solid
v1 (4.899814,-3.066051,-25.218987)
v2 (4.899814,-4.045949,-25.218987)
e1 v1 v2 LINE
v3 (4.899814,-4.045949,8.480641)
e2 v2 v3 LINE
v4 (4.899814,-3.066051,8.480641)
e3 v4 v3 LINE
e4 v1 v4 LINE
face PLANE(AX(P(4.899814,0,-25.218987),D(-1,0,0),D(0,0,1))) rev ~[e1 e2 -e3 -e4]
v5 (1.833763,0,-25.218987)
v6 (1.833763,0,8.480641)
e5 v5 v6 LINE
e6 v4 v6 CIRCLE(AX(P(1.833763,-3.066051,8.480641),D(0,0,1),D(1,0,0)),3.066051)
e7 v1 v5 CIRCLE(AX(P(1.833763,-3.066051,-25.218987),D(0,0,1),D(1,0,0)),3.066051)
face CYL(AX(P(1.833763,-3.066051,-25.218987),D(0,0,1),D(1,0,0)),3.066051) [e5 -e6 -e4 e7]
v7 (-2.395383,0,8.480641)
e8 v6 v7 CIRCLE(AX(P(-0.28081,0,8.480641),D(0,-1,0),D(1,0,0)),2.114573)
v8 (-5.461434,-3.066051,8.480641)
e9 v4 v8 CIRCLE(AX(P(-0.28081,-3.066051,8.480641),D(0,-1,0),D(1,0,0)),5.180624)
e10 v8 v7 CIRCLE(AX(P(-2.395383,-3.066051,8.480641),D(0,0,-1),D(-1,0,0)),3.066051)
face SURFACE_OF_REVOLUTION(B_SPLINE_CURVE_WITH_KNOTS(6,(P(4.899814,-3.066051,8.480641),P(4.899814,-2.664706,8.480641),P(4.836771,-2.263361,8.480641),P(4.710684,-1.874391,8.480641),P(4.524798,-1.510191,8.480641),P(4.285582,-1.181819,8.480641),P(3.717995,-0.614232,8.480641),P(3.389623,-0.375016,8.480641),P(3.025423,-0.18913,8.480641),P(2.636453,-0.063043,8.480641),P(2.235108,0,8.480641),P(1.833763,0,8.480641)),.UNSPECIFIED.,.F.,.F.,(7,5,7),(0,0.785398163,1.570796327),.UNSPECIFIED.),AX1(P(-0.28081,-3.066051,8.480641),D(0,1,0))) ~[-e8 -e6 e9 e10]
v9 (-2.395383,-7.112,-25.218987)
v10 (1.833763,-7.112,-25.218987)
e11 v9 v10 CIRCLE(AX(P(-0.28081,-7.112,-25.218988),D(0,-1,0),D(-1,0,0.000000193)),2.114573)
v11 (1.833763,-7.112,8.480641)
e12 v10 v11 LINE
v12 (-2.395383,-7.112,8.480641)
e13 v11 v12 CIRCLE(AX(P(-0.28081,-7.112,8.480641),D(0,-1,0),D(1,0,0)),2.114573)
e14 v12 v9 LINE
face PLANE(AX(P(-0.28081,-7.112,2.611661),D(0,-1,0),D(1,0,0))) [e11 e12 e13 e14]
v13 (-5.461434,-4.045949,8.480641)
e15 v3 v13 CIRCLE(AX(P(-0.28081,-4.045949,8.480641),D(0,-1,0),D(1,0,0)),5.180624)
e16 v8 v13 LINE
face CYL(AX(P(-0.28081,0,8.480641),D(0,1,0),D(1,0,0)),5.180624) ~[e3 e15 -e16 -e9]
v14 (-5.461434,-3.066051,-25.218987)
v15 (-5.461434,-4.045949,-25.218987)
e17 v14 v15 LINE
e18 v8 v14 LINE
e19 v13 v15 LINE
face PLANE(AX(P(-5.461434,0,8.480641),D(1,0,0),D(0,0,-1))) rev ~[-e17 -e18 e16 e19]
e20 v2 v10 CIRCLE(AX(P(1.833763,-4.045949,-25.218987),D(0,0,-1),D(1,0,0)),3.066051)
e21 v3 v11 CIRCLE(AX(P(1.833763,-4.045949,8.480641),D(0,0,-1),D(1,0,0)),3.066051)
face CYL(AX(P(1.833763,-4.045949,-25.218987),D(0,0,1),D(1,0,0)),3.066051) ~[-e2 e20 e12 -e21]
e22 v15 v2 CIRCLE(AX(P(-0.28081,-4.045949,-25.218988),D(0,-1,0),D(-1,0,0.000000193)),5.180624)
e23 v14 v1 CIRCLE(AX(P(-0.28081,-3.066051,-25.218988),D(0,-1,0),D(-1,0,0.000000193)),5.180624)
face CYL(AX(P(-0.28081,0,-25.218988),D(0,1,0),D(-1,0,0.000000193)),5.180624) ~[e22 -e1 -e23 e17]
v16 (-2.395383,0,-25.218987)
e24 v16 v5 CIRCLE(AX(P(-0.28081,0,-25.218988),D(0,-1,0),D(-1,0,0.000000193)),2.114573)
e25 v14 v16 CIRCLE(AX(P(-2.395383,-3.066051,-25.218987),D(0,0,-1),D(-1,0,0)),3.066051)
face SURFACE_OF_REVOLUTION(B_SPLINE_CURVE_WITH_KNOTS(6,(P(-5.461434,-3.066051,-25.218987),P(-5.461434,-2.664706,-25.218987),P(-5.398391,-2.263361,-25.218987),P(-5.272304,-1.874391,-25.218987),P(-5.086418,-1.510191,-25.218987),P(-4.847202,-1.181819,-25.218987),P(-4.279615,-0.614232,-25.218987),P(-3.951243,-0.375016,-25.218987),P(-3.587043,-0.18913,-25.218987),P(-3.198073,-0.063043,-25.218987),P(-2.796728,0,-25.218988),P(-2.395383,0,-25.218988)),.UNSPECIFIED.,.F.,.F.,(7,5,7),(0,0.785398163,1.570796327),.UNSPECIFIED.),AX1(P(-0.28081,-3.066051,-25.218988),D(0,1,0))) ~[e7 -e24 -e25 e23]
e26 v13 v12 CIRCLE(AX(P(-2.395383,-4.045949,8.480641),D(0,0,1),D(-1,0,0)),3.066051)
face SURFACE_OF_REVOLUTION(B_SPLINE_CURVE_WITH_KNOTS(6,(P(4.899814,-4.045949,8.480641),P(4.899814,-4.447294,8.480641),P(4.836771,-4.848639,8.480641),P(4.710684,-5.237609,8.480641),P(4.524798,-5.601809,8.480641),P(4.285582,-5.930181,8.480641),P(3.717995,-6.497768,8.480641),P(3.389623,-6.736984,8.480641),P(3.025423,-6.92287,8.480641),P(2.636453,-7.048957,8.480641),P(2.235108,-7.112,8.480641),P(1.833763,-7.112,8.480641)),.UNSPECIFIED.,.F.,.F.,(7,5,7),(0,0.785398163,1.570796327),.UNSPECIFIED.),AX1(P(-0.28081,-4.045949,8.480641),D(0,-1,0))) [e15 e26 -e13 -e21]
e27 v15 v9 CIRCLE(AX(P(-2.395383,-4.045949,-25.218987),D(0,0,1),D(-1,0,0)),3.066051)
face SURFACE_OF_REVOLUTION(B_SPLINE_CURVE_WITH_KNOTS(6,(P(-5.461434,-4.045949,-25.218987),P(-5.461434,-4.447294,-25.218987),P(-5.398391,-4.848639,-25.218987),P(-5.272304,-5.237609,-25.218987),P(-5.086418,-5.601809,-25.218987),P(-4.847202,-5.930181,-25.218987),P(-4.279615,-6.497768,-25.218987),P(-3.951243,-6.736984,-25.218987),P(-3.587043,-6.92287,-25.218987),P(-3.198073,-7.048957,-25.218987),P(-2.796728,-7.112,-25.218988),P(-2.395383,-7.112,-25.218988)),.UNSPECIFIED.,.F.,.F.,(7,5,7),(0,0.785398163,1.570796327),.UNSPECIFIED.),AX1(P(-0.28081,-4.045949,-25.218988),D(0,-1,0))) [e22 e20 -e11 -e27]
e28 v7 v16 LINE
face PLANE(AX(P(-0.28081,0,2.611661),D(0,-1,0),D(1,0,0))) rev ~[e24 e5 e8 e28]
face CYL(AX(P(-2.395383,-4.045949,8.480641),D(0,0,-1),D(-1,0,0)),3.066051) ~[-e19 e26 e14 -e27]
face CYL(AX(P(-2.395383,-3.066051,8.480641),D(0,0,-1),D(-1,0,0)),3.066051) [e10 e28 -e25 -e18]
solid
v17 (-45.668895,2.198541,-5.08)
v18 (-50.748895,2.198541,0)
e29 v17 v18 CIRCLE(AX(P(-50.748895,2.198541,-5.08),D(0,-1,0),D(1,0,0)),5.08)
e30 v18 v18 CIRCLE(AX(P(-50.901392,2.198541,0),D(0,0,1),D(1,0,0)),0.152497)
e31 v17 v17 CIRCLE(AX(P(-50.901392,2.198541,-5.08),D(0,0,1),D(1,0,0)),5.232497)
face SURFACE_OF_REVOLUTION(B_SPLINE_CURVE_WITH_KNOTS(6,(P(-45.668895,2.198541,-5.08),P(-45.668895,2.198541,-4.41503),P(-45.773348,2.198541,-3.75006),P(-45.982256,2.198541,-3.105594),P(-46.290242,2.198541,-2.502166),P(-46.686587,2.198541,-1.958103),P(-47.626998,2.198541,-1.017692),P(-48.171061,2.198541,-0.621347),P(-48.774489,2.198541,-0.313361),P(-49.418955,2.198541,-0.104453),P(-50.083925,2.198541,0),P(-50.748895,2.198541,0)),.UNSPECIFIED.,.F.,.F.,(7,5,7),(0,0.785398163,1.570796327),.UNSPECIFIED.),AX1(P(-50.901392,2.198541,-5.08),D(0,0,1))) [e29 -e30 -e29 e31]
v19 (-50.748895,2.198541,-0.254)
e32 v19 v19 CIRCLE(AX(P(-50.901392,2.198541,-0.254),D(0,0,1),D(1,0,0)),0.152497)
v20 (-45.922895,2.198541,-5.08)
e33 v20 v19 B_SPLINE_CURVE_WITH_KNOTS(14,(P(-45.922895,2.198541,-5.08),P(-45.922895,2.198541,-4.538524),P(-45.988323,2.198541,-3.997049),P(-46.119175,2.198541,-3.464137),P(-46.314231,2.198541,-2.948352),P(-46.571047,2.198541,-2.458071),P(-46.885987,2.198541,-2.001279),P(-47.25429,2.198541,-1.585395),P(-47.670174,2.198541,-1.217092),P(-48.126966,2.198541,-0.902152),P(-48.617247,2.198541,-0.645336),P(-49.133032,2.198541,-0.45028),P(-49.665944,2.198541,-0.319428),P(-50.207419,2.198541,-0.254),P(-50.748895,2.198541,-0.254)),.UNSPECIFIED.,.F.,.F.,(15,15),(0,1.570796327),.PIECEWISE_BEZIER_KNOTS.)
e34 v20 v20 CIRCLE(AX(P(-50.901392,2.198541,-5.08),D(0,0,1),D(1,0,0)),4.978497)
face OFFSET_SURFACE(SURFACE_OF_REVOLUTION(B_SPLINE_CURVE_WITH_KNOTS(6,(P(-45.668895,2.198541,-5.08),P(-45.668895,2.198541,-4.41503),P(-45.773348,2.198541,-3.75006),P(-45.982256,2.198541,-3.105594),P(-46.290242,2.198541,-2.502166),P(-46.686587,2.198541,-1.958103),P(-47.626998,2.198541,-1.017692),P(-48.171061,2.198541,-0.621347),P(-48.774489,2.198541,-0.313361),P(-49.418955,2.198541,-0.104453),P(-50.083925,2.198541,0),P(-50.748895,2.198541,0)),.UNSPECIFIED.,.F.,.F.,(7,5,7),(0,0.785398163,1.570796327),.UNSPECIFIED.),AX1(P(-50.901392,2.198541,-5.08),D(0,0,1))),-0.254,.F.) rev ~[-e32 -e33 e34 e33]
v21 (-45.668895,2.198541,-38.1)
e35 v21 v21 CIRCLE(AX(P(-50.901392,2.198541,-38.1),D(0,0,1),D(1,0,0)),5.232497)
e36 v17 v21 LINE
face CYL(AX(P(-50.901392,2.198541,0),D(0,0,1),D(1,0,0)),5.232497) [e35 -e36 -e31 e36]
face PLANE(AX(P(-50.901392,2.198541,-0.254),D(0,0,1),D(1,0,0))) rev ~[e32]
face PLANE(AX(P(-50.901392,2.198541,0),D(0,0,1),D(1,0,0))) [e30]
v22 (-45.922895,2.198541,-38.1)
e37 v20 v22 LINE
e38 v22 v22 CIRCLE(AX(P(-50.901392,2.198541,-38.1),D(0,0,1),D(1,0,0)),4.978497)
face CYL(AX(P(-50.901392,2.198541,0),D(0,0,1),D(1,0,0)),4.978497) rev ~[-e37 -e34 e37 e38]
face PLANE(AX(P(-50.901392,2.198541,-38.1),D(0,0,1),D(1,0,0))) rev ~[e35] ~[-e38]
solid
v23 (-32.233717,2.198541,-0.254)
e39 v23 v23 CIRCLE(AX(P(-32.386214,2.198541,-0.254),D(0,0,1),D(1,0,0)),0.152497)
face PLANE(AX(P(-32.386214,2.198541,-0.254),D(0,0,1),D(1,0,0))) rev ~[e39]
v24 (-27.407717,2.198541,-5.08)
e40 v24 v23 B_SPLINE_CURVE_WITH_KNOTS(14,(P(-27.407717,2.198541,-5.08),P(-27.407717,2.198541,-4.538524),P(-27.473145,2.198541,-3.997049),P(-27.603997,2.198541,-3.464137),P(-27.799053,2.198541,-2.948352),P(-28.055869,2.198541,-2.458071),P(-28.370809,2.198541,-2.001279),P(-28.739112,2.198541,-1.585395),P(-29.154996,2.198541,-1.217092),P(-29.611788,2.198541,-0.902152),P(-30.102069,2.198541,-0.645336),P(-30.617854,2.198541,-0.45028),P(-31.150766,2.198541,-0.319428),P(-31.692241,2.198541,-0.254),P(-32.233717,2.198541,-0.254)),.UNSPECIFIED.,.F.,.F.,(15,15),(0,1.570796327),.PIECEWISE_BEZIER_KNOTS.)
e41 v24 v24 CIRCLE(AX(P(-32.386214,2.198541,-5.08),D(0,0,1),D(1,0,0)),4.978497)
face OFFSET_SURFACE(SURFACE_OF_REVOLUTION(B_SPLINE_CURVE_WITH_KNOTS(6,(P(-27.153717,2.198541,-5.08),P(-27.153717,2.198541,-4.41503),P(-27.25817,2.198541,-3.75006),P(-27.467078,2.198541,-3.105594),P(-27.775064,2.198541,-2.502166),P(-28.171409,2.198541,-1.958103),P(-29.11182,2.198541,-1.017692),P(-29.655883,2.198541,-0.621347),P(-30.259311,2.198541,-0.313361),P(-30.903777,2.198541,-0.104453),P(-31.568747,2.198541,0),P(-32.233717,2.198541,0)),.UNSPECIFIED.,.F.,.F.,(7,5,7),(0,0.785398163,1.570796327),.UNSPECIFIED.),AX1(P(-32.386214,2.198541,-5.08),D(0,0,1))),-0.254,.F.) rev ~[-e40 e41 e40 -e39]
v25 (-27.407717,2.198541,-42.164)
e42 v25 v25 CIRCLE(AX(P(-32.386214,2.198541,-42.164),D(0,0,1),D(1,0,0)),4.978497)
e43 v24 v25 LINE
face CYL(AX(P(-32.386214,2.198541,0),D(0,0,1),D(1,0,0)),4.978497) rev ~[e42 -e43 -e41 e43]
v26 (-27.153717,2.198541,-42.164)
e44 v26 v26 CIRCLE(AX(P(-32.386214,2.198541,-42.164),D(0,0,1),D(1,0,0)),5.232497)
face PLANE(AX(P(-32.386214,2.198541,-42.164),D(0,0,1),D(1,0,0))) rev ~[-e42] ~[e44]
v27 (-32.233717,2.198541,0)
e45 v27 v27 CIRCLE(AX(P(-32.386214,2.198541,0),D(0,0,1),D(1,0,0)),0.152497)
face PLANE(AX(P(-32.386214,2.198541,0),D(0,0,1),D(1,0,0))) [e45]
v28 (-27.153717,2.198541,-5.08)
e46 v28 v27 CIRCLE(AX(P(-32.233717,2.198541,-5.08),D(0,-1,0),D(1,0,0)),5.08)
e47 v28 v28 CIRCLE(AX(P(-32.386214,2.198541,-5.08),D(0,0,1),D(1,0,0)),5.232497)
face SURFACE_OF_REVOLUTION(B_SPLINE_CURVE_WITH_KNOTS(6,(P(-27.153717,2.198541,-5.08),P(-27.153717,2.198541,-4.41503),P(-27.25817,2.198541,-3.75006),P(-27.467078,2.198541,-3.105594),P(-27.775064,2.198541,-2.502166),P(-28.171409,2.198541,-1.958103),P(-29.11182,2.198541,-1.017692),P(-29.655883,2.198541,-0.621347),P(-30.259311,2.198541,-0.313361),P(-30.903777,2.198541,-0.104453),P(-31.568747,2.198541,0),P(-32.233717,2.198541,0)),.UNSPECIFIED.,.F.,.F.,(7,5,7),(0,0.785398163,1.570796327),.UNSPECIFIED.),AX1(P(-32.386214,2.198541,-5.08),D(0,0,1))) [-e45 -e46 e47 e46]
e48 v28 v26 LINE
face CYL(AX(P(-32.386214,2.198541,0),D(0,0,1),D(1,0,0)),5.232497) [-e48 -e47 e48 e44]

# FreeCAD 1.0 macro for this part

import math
import FreeCAD as App
import Part
import Sketcher

V = App.Vector
Q = App.Units.Quantity


def edges_at(feature, points):
    """Names of the edges that pass closest to the given points."""
    edges = feature.Shape.Edges
    near = lambda p: min(range(len(edges)), key=lambda i: edges[i].distToShape(Part.Vertex(*p))[0])
    return sorted({f"Edge{near(p) + 1}" for p in points})


def faces_at(feature, points):
    """Names of the faces that lie closest to the given points."""
    faces = feature.Shape.Faces
    near = lambda p: min(range(len(faces)), key=lambda i: faces[i].distToShape(Part.Vertex(*p))[0])
    return sorted({f"Face{near(p) + 1}" for p in points})

doc = App.newDocument("Part")
body = doc.addObject("PartDesign::Body", "Body")

# Sketch on XZ plane
sketch1 = body.newObject("Sketcher::SketchObject", "Sketch")
sketch1.AttachmentSupport = (doc.getObject("XZ_Plane"), [""])
sketch1.MapMode = "FlatFace"
sketch1.addGeometry([
    Part.LineSegment(V(-5, 8, 0), V(-5, -25, 0)),
    Part.ArcOfCircle(Part.Circle(V(0, -25, 0), V(0, 0, 1), 5), math.radians(180), math.radians(360)),
    Part.LineSegment(V(5, -25, 0), V(5, 8, 0)),
    Part.ArcOfCircle(Part.Circle(V(0, 8, 0), V(0, 0, 1), 5), math.radians(0), math.radians(180)),
], False)
sketch1.addConstraint([
    Sketcher.Constraint("Tangent", 0, 2, 1, 1),
    Sketcher.Constraint("Tangent", 1, 2, 2, 1),
    Sketcher.Constraint("Tangent", 2, 2, 3, 1),
    Sketcher.Constraint("Tangent", 3, 2, 0, 1),
    Sketcher.Constraint("Vertical", 0),
    Sketcher.Constraint("Vertical", 2),
    Sketcher.Constraint("Radius", 1, Q("5.180624 mm")),
    Sketcher.Constraint("DistanceY", 0, 2, 0, 1, Q("33.699628 mm")),
    Sketcher.Constraint("DistanceX", 1, 3, -1, 1, Q("0.28081 mm")),
    Sketcher.Constraint("DistanceY", -1, 1, 3, 3, Q("8.480641 mm")),
])
pad1 = body.newObject("PartDesign::Pad", "Pad")
pad1.Profile = sketch1
pad1.Length = Q("0.28 in")
doc.recompute()

fillet = body.newObject("PartDesign::Fillet", "Fillet")
fillet.Base = (pad1, edges_at(pad1, [(4.9, -7.112, -8.369), (4.9, 0, -8.369), (-5.461, 0, -8.369)]))
fillet.Radius = 3.066051
body2 = doc.addObject("PartDesign::Body", "Body001")

# Sketch on XY plane
sketch2 = body2.newObject("Sketcher::SketchObject", "Sketch001")
sketch2.AttachmentSupport = (doc.getObject("XY_Plane001"), [""])
sketch2.MapMode = "FlatFace"
sketch2.addGeometry(Part.Circle(V(-32, 2, 0), V(0, 0, 1), 5), False)
sketch2.addConstraint([
    Sketcher.Constraint("Diameter", 0, Q("10.464994 mm")),
    Sketcher.Constraint("DistanceY", -1, 1, 0, 3, Q("2.198541 mm")),
    Sketcher.Constraint("DistanceX", 0, 3, -1, 1, Q("32.386214 mm")),
])
pad2 = body2.newObject("PartDesign::Pad", "Pad001")
pad2.Profile = sketch2
pad2.Length = Q("1.66 in")
pad2.Reversed = True
doc.recompute()

fillet2 = body2.newObject("PartDesign::Fillet", "Fillet001")
fillet2.Base = (pad2, edges_at(pad2, [(-37.619, 2.199, 0)]))
fillet2.Radius = Q("0.2 in")
doc.recompute()

thickness = body2.newObject("PartDesign::Thickness", "Thickness")
thickness.Base = (fillet2, faces_at(fillet2, [(-32.386, 2.199, -42.164)]))
thickness.Value = Q("0.01 in")
thickness.Reversed = True
thickness.Join = "Arc"
body3 = doc.addObject("PartDesign::Body", "Body002")

# Sketch on XY plane
sketch3 = body3.newObject("Sketcher::SketchObject", "Sketch002")
sketch3.AttachmentSupport = (doc.getObject("XY_Plane002"), [""])
sketch3.MapMode = "FlatFace"
sketch3.addGeometry(Part.Circle(V(-51, 2, 0), V(0, 0, 1), 5), False)
sketch3.addConstraint([
    Sketcher.Constraint("Diameter", 0, Q("10.464994 mm")),
    Sketcher.Constraint("DistanceY", -1, 1, 0, 3, Q("2.198541 mm")),
    Sketcher.Constraint("DistanceX", 0, 3, -1, 1, Q("50.901392 mm")),
])
pad3 = body3.newObject("PartDesign::Pad", "Pad002")
pad3.Profile = sketch3
pad3.Length = Q("1.5 in")
pad3.Reversed = True
doc.recompute()

fillet3 = body3.newObject("PartDesign::Fillet", "Fillet002")
fillet3.Base = (pad3, edges_at(pad3, [(-56.134, 2.199, 0)]))
fillet3.Radius = Q("0.2 in")
doc.recompute()

thickness2 = body3.newObject("PartDesign::Thickness", "Thickness001")
thickness2.Base = (fillet3, faces_at(fillet3, [(-50.901, 2.199, -38.1)]))
thickness2.Value = Q("0.01 in")
thickness2.Reversed = True
thickness2.Join = "Arc"

doc.recompute()
